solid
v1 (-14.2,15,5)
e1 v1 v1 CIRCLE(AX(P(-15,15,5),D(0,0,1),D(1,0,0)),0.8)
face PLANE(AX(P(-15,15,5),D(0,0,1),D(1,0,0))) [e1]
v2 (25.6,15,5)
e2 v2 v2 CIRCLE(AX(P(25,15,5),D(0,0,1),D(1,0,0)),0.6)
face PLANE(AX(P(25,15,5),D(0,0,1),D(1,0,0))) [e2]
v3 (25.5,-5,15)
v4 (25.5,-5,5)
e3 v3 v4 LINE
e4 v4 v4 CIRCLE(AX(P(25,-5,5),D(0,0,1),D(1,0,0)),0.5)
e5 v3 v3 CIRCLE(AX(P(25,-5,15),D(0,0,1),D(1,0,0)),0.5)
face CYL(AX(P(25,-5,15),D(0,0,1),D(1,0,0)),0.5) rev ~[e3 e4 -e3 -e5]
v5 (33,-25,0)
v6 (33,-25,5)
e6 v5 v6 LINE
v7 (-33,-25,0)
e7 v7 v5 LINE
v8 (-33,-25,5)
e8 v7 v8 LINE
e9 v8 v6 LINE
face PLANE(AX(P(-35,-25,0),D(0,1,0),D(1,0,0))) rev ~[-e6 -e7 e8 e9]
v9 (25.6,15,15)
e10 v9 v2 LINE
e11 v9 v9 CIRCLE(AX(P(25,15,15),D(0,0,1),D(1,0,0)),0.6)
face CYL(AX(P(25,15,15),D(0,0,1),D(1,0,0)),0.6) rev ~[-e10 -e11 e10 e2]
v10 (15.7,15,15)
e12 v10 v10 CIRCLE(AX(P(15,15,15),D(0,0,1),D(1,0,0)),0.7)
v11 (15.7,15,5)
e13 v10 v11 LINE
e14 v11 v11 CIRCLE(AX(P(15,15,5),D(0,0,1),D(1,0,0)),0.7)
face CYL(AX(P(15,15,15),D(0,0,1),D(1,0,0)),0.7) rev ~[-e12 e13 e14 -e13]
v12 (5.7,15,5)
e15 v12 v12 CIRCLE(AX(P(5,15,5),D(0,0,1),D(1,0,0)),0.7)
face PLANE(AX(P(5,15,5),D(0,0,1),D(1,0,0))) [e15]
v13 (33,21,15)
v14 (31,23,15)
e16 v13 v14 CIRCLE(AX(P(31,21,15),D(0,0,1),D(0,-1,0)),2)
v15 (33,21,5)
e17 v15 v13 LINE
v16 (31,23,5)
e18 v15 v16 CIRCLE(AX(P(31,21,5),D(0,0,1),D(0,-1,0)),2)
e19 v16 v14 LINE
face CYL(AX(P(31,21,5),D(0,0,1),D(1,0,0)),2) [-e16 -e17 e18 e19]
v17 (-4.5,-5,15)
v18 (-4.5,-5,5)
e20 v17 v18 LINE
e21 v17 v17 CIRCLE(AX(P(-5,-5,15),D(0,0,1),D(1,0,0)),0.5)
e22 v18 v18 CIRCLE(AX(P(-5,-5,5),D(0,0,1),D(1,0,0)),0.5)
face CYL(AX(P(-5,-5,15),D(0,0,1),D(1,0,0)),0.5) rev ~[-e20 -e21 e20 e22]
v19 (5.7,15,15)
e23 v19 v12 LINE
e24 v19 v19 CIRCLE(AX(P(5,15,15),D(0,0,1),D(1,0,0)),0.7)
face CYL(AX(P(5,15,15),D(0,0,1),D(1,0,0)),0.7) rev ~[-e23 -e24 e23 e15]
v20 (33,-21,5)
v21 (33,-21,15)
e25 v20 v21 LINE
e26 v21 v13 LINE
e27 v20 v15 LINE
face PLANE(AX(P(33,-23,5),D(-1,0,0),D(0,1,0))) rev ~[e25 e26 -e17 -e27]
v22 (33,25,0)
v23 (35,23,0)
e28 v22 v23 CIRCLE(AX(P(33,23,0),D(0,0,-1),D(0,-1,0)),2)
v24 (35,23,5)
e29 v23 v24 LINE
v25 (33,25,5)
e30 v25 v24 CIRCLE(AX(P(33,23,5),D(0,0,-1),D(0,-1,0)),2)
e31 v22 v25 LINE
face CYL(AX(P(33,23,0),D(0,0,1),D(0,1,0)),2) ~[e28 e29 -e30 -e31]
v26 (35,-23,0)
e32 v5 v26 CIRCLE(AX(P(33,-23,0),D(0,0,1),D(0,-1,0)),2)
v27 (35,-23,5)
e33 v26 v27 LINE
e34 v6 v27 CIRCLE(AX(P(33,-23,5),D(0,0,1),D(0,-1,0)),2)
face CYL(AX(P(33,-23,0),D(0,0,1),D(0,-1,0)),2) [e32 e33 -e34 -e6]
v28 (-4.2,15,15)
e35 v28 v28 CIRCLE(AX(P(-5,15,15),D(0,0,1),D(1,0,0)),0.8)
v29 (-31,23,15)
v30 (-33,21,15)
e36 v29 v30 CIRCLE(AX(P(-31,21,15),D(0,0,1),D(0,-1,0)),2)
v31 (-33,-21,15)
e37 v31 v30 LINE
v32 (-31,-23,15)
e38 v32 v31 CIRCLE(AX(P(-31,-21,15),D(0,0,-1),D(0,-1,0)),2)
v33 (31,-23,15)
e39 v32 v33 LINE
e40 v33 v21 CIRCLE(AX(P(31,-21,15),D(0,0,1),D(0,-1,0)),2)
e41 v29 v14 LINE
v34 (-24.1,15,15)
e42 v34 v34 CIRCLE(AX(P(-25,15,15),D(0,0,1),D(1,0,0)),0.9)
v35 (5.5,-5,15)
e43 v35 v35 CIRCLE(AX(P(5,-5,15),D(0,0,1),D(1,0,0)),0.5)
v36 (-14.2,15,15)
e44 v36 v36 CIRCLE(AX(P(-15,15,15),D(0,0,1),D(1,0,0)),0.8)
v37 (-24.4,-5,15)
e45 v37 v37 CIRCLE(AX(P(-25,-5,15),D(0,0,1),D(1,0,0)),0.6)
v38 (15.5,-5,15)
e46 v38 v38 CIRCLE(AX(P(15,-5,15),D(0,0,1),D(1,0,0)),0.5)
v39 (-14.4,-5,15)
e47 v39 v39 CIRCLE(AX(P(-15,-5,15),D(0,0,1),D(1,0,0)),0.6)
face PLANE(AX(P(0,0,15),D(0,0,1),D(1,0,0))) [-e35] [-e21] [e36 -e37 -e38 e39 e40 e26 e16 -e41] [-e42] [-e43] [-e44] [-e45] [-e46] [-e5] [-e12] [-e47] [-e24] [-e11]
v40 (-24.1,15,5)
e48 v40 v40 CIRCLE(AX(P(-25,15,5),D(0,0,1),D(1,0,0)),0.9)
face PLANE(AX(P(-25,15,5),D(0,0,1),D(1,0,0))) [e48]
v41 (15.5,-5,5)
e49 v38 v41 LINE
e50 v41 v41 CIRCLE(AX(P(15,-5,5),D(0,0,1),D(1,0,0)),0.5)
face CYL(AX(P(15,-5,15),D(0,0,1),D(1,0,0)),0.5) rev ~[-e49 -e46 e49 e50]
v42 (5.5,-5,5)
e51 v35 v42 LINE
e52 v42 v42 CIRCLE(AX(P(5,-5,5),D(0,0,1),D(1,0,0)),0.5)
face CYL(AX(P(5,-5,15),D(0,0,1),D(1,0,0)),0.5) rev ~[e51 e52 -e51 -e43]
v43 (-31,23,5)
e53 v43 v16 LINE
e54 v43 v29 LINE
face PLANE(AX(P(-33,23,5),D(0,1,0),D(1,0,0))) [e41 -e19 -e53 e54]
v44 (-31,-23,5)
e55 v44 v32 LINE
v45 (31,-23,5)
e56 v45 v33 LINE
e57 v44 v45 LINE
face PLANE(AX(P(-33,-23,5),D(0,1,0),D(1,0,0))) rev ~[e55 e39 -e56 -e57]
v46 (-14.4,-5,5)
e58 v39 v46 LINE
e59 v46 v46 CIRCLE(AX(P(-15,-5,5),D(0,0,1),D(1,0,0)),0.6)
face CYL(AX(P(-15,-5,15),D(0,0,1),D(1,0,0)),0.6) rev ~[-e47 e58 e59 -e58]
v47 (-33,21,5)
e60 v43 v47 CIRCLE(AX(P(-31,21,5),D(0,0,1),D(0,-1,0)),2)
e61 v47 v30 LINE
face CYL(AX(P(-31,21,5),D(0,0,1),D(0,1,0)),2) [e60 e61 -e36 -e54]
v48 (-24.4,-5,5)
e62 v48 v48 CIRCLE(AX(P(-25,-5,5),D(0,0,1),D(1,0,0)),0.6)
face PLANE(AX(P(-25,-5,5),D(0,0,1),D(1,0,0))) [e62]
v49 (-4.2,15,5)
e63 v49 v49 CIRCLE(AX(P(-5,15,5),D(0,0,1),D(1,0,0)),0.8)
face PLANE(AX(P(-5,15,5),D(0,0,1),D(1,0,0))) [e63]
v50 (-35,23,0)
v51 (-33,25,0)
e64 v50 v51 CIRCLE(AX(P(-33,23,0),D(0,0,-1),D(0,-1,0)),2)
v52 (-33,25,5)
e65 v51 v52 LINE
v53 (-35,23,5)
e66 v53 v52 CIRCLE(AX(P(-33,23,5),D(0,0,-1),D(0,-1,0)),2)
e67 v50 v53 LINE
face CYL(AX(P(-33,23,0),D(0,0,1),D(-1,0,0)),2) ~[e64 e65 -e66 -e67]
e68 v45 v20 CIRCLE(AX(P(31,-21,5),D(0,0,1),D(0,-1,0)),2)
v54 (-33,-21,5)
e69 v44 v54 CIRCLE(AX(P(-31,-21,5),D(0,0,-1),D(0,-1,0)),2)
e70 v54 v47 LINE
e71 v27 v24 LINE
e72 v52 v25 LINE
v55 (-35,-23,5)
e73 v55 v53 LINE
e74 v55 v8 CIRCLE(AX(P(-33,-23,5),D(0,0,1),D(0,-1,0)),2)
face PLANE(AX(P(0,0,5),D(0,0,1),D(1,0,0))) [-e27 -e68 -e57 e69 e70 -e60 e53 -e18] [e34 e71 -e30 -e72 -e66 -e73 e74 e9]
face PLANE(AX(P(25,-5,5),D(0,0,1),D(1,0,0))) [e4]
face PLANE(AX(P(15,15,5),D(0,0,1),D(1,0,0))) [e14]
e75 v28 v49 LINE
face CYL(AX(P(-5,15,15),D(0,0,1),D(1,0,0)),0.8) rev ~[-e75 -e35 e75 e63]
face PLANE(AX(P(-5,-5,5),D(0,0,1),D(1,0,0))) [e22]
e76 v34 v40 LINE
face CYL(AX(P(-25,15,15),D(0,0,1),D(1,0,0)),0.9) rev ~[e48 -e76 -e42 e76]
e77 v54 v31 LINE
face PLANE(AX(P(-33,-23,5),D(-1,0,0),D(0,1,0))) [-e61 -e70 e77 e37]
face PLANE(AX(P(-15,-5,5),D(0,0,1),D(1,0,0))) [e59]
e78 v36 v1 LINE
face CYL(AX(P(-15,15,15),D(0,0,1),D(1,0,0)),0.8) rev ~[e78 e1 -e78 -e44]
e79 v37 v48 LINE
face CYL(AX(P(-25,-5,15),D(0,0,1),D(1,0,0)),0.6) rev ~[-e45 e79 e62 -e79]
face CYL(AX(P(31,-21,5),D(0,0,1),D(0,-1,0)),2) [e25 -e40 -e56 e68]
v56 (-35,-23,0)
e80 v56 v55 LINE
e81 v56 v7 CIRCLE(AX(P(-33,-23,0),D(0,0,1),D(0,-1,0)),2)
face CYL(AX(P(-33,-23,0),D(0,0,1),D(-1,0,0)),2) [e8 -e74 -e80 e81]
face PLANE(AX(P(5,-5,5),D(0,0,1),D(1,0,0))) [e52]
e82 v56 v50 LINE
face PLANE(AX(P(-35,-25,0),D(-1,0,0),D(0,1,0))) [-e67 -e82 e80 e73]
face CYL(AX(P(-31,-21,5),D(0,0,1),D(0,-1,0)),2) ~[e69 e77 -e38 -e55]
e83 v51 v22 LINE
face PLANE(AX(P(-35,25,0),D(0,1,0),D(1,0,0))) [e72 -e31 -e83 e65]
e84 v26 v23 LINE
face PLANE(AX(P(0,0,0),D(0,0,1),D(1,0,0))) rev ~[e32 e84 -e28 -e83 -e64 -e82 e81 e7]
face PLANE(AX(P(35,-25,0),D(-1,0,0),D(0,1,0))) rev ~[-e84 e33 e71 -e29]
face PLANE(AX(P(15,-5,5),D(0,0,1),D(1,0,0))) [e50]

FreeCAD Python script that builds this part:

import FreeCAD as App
import Part
import Sketcher


def edges_at(feature, points):
    """Names of the edges that pass closest to the given points."""
    edges = feature.Shape.Edges
    near = lambda p: min(range(len(edges)), key=lambda i: edges[i].distToShape(Part.Vertex(*p))[0])
    return sorted({f"Edge{near(p) + 1}" for p in points})

doc = App.newDocument("Part")
params = doc.addObject("Spreadsheet::Sheet", "Params")
for row, (alias, value) in enumerate([
    ("sketch1_width", "70 mm"),
    ("sketch1_height", "50 mm"),
    ("pad1_length", "5 mm"),
    ("sketch2_width", "66 mm"),
    ("sketch2_height", "46 mm"),
    ("pad2_length", "10 mm"),
    ("fillet_radius", "2 mm"),
    ("sketch3_diameter", "1 mm"),
    ("sketch3_diameter2", "1.2 mm"),
    ("sketch3_diameter3", "1.4 mm"),
    ("sketch3_diameter4", "1.6 mm"),
    ("sketch3_diameter5", "1.8 mm"),
    ("pocket1_length", "10 mm"),
], start=1):
    params.set(f"A{row}", alias)
    params.set(f"B{row}", "=" + value)
    params.setAlias(f"B{row}", alias)

body = doc.addObject("PartDesign::Body", "Body")

# Sketch on XY plane
sketch1 = body.newObject("Sketcher::SketchObject", "Sketch")
sketch1.AttachmentSupport = (doc.getObject("XY_Plane"), [""])
sketch1.MapMode = "FlatFace"
sketch1.addGeometry([
    Part.LineSegment(App.Vector(-35, 25, 0), App.Vector(-35, -25, 0)),
    Part.LineSegment(App.Vector(-35, -25, 0), App.Vector(35, -25, 0)),
    Part.LineSegment(App.Vector(35, -25, 0), App.Vector(35, 25, 0)),
    Part.LineSegment(App.Vector(35, 25, 0), App.Vector(-35, 25, 0)),
], False)
sketch1.addConstraint([
    Sketcher.Constraint("Coincident", 0, 2, 1, 1),
    Sketcher.Constraint("Coincident", 1, 2, 2, 1),
    Sketcher.Constraint("Coincident", 2, 2, 3, 1),
    Sketcher.Constraint("Coincident", 3, 2, 0, 1),
    Sketcher.Constraint("Vertical", 0),
    Sketcher.Constraint("Horizontal", 1),
    Sketcher.Constraint("Vertical", 2),
    Sketcher.Constraint("Horizontal", 3),
    Sketcher.Constraint("Symmetric", 0, 2, 2, 2, -1, 1),
    Sketcher.Constraint("DistanceX", 1, 1, 1, 2, 70.0),
    Sketcher.Constraint("DistanceY", 0, 2, 0, 1, 50.0),
])
sketch1.setExpression("Constraints[9]", "Params.sketch1_width")
sketch1.setExpression("Constraints[10]", "Params.sketch1_height")
pad1 = body.newObject("PartDesign::Pad", "Pad")
pad1.Profile = sketch1
pad1.setExpression("Length", "Params.pad1_length")

# Sketch on XY plane
sketch2 = body.newObject("Sketcher::SketchObject", "Sketch001")
sketch2.AttachmentSupport = (doc.getObject("XY_Plane"), [""])
sketch2.MapMode = "FlatFace"
sketch2.AttachmentOffset = App.Placement(App.Vector(0, 0, 5), App.Rotation())
sketch2.addGeometry([
    Part.LineSegment(App.Vector(-33, 23, 0), App.Vector(-33, -23, 0)),
    Part.LineSegment(App.Vector(-33, -23, 0), App.Vector(33, -23, 0)),
    Part.LineSegment(App.Vector(33, -23, 0), App.Vector(33, 23, 0)),
    Part.LineSegment(App.Vector(33, 23, 0), App.Vector(-33, 23, 0)),
], False)
sketch2.addConstraint([
    Sketcher.Constraint("Coincident", 0, 2, 1, 1),
    Sketcher.Constraint("Coincident", 1, 2, 2, 1),
    Sketcher.Constraint("Coincident", 2, 2, 3, 1),
    Sketcher.Constraint("Coincident", 3, 2, 0, 1),
    Sketcher.Constraint("Vertical", 0),
    Sketcher.Constraint("Horizontal", 1),
    Sketcher.Constraint("Vertical", 2),
    Sketcher.Constraint("Horizontal", 3),
    Sketcher.Constraint("Symmetric", 0, 2, 2, 2, -1, 1),
    Sketcher.Constraint("DistanceX", 1, 1, 1, 2, 66.0),
    Sketcher.Constraint("DistanceY", 0, 2, 0, 1, 46.0),
])
sketch2.setExpression("Constraints[9]", "Params.sketch2_width")
sketch2.setExpression("Constraints[10]", "Params.sketch2_height")
pad2 = body.newObject("PartDesign::Pad", "Pad001")
pad2.Profile = sketch2
pad2.setExpression("Length", "Params.pad2_length")
doc.recompute()

fillet = body.newObject("PartDesign::Fillet", "Fillet")
fillet.Base = (pad2, edges_at(pad2, [
    (-33, -23, 10),
    (33, -23, 10),
    (35, -25, 2.5),
    (-35, -25, 2.5),
    (-35, 25, 2.5),
    (-33, 23, 10),
    (33, 23, 10),
    (35, 25, 2.5),
]))
fillet.setExpression("Radius", "Params.fillet_radius")

# Sketch on XY plane
sketch3 = body.newObject("Sketcher::SketchObject", "Sketch002")
sketch3.AttachmentSupport = (doc.getObject("XY_Plane"), [""])
sketch3.MapMode = "FlatFace"
sketch3.AttachmentOffset = App.Placement(App.Vector(0, 0, 15), App.Rotation())
sketch3.addGeometry([
    Part.Circle(App.Vector(25, -5, 0), App.Vector(0, 0, 1), 0.5),  # 0
    Part.Circle(App.Vector(15, -5, 0), App.Vector(0, 0, 1), 0.5),  # 1
    Part.Circle(App.Vector(5, -5, 0), App.Vector(0, 0, 1), 0.5),  # 2
    Part.Circle(App.Vector(-5, -5, 0), App.Vector(0, 0, 1), 0.5),  # 3
    Part.Circle(App.Vector(-15, -5, 0), App.Vector(0, 0, 1), 0.6),  # 4
    Part.Circle(App.Vector(-25, -5, 0), App.Vector(0, 0, 1), 0.6),  # 5
    Part.Circle(App.Vector(25, 15, 0), App.Vector(0, 0, 1), 0.6),  # 6
    Part.Circle(App.Vector(15, 15, 0), App.Vector(0, 0, 1), 0.7),  # 7
    Part.Circle(App.Vector(5, 15, 0), App.Vector(0, 0, 1), 0.7),  # 8
    Part.Circle(App.Vector(-5, 15, 0), App.Vector(0, 0, 1), 0.8),  # 9
    Part.Circle(App.Vector(-15, 15, 0), App.Vector(0, 0, 1), 0.8),  # 10
    Part.Circle(App.Vector(-25, 15, 0), App.Vector(0, 0, 1), 0.9),  # 11
], False)
sketch3.addConstraint([
    Sketcher.Constraint("Equal", 0, 1),
    Sketcher.Constraint("Equal", 1, 2),
    Sketcher.Constraint("Equal", 2, 3),
    Sketcher.Constraint("Equal", 4, 5),
    Sketcher.Constraint("Equal", 5, 6),
    Sketcher.Constraint("Equal", 7, 8),
    Sketcher.Constraint("Equal", 9, 10),
    Sketcher.Constraint("Symmetric", 2, 3, 3, 3, -2),
    Sketcher.Constraint("Symmetric", 1, 3, 4, 3, -2),
    Sketcher.Constraint("Symmetric", 0, 3, 5, 3, -2),
    Sketcher.Constraint("Symmetric", 8, 3, 9, 3, -2),
    Sketcher.Constraint("Symmetric", 7, 3, 10, 3, -2),
    Sketcher.Constraint("Symmetric", 6, 3, 11, 3, -2),
    Sketcher.Constraint("Horizontal", 0, 3, 1, 3),
    Sketcher.Constraint("Horizontal", 1, 3, 2, 3),
    Sketcher.Constraint("Horizontal", 6, 3, 7, 3),
    Sketcher.Constraint("Horizontal", 7, 3, 8, 3),
    Sketcher.Constraint("Vertical", 0, 3, 6, 3),
    Sketcher.Constraint("Vertical", 1, 3, 7, 3),
    Sketcher.Constraint("Vertical", 2, 3, 8, 3),
    Sketcher.Constraint("Diameter", 0, 1.0),
    Sketcher.Constraint("Diameter", 4, 1.2),
    Sketcher.Constraint("Diameter", 7, 1.4),
    Sketcher.Constraint("Diameter", 9, 1.6),
    Sketcher.Constraint("Diameter", 11, 1.8),
    Sketcher.Constraint("DistanceX", -1, 1, 0, 3, 25.0),
    Sketcher.Constraint("DistanceY", 0, 3, -1, 1, 5.0),
    Sketcher.Constraint("DistanceX", -1, 1, 1, 3, 15.0),
    Sketcher.Constraint("DistanceX", -1, 1, 2, 3, 5.0),
    Sketcher.Constraint("DistanceY", -1, 1, 6, 3, 15.0),
])
sketch3.setExpression("Constraints[20]", "Params.sketch3_diameter")
sketch3.setExpression("Constraints[21]", "Params.sketch3_diameter2")
sketch3.setExpression("Constraints[22]", "Params.sketch3_diameter3")
sketch3.setExpression("Constraints[23]", "Params.sketch3_diameter4")
sketch3.setExpression("Constraints[24]", "Params.sketch3_diameter5")
pocket1 = body.newObject("PartDesign::Pocket", "Pocket")
pocket1.Profile = sketch3
pocket1.setExpression("Length", "Params.pocket1_length")

doc.recompute()
